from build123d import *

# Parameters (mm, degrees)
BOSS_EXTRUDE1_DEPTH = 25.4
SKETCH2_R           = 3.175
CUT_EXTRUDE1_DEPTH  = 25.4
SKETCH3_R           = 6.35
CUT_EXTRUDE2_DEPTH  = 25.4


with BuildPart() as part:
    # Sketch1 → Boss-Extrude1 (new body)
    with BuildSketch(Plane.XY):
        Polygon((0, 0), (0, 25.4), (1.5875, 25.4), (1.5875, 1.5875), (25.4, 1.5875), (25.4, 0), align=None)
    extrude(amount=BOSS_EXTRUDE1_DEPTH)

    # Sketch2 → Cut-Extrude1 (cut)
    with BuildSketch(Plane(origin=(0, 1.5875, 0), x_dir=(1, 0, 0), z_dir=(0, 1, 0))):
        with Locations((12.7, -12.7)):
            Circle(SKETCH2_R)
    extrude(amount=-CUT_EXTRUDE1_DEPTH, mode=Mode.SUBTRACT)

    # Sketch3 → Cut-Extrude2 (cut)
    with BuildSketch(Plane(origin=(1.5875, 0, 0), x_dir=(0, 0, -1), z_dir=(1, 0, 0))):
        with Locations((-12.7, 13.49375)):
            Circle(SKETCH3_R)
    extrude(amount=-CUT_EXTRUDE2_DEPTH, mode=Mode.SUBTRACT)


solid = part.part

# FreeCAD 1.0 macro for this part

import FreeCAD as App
import Part
import Sketcher
from FreeCAD import Vector
Q = App.Units.Quantity

doc = App.newDocument("Part")
params = doc.addObject("Spreadsheet::Sheet", "Params")
for row, (alias, value) in enumerate([
    ("sketch1_width", "1 in"),
    ("sketch1_width2", "0.9375 in"),
    ("pad1_length", "1 in"),
    ("sketch2_diameter", "0.25 in"),
    ("pocket1_length", "1 in"),
    ("sketch3_diameter", "0.5 in"),
    ("pocket2_length", "1 in"),
], start=1):
    params.set(f"A{row}", alias)
    params.set(f"B{row}", "=" + value)
    params.setAlias(f"B{row}", alias)

body = doc.addObject("PartDesign::Body", "Body")

# Sketch on XY plane
sketch1 = doc.addObject("Sketcher::SketchObject", "Sketch")
body.addObject(sketch1)
sketch1.AttachmentSupport = (doc.XY_Plane, [""])
sketch1.MapMode = "FlatFace"
sketch1.addGeometry(Part.LineSegment(Vector(0, 25.4, 0), Vector(0, 0, 0)), False)
sketch1.addGeometry(Part.LineSegment(Vector(0, 0, 0), Vector(25.4, 0, 0)), False)
sketch1.addGeometry(Part.LineSegment(Vector(25.4, 0, 0), Vector(25.4, 1.5875, 0)), False)
sketch1.addGeometry(Part.LineSegment(Vector(25.4, 1.5875, 0), Vector(1.5875, 1.5875, 0)), False)
sketch1.addGeometry(Part.LineSegment(Vector(1.5875, 1.5875, 0), Vector(1.5875, 25.4, 0)), False)
sketch1.addGeometry(Part.LineSegment(Vector(1.5875, 25.4, 0), Vector(0, 25.4, 0)), False)
sketch1.addConstraint(Sketcher.Constraint("Coincident", 0, 2, 1, 1))
sketch1.addConstraint(Sketcher.Constraint("Coincident", 1, 2, 2, 1))
sketch1.addConstraint(Sketcher.Constraint("Coincident", 2, 2, 3, 1))
sketch1.addConstraint(Sketcher.Constraint("Coincident", 3, 2, 4, 1))
sketch1.addConstraint(Sketcher.Constraint("Coincident", 4, 2, 5, 1))
sketch1.addConstraint(Sketcher.Constraint("Coincident", 5, 2, 0, 1))
sketch1.addConstraint(Sketcher.Constraint("Vertical", 0))
sketch1.addConstraint(Sketcher.Constraint("Horizontal", 1))
sketch1.addConstraint(Sketcher.Constraint("Vertical", 2))
sketch1.addConstraint(Sketcher.Constraint("Horizontal", 3))
sketch1.addConstraint(Sketcher.Constraint("Vertical", 4))
sketch1.addConstraint(Sketcher.Constraint("Horizontal", 5))
sketch1.addConstraint(Sketcher.Constraint("Coincident", 0, 2, -1, 1))
sketch1.addConstraint(Sketcher.Constraint("Equal", 1, 0))
sketch1.addConstraint(Sketcher.Constraint("Equal", 5, 2))
sketch1.addConstraint(Sketcher.Constraint("DistanceX", 1, 1, 1, 2, Q("1 in")))
sketch1.addConstraint(Sketcher.Constraint("DistanceX", 3, 2, 3, 1, Q("0.9375 in")))
sketch1.setExpression("Constraints[15]", "Params.sketch1_width")
sketch1.setExpression("Constraints[16]", "Params.sketch1_width2")
pad1 = doc.addObject("PartDesign::Pad", "Pad")
body.addObject(pad1)
pad1.Profile = sketch1
pad1.setExpression("Length", "Params.pad1_length")

# Sketch on XZ plane
sketch2 = doc.addObject("Sketcher::SketchObject", "Sketch001")
body.addObject(sketch2)
sketch2.AttachmentSupport = (doc.XZ_Plane, [""])
sketch2.MapMode = "FlatFace"
sketch2.AttachmentOffset = App.Placement(Vector(0, 0, -0.0625 * 25.4), App.Rotation())
sketch2.addGeometry(Part.Circle(Vector(12.7, 12.7, 0), Vector(0, 0, 1), 3.175), False)
sketch2.addConstraint(Sketcher.Constraint("Diameter", 0, Q("0.25 in")))
sketch2.addConstraint(Sketcher.Constraint("DistanceX", -1, 1, 0, 3, Q("0.5 in")))
sketch2.addConstraint(Sketcher.Constraint("DistanceY", -1, 1, 0, 3, Q("0.5 in")))
sketch2.setExpression("Constraints[0]", "Params.sketch2_diameter")
pocket1 = doc.addObject("PartDesign::Pocket", "Pocket")
body.addObject(pocket1)
pocket1.Profile = sketch2
pocket1.setExpression("Length", "Params.pocket1_length")
pocket1.Reversed = True

# Sketch on YZ plane
sketch3 = doc.addObject("Sketcher::SketchObject", "Sketch002")
body.addObject(sketch3)
sketch3.AttachmentSupport = (doc.YZ_Plane, [""])
sketch3.MapMode = "FlatFace"
sketch3.AttachmentOffset = App.Placement(Vector(0, 0, 0.0625 * 25.4), App.Rotation())
sketch3.addGeometry(Part.Circle(Vector(13.49375, 12.7, 0), Vector(0, 0, 1), 6.35), False)
sketch3.addConstraint(Sketcher.Constraint("Diameter", 0, Q("0.5 in")))
sketch3.addConstraint(Sketcher.Constraint("DistanceY", -1, 1, 0, 3, Q("0.5 in")))
sketch3.addConstraint(Sketcher.Constraint("DistanceX", -1, 1, 0, 3, Q("0.53125 in")))
sketch3.setExpression("Constraints[0]", "Params.sketch3_diameter")
pocket2 = doc.addObject("PartDesign::Pocket", "Pocket001")
body.addObject(pocket2)
pocket2.Profile = sketch3
pocket2.setExpression("Length", "Params.pocket2_length")

doc.recompute()
